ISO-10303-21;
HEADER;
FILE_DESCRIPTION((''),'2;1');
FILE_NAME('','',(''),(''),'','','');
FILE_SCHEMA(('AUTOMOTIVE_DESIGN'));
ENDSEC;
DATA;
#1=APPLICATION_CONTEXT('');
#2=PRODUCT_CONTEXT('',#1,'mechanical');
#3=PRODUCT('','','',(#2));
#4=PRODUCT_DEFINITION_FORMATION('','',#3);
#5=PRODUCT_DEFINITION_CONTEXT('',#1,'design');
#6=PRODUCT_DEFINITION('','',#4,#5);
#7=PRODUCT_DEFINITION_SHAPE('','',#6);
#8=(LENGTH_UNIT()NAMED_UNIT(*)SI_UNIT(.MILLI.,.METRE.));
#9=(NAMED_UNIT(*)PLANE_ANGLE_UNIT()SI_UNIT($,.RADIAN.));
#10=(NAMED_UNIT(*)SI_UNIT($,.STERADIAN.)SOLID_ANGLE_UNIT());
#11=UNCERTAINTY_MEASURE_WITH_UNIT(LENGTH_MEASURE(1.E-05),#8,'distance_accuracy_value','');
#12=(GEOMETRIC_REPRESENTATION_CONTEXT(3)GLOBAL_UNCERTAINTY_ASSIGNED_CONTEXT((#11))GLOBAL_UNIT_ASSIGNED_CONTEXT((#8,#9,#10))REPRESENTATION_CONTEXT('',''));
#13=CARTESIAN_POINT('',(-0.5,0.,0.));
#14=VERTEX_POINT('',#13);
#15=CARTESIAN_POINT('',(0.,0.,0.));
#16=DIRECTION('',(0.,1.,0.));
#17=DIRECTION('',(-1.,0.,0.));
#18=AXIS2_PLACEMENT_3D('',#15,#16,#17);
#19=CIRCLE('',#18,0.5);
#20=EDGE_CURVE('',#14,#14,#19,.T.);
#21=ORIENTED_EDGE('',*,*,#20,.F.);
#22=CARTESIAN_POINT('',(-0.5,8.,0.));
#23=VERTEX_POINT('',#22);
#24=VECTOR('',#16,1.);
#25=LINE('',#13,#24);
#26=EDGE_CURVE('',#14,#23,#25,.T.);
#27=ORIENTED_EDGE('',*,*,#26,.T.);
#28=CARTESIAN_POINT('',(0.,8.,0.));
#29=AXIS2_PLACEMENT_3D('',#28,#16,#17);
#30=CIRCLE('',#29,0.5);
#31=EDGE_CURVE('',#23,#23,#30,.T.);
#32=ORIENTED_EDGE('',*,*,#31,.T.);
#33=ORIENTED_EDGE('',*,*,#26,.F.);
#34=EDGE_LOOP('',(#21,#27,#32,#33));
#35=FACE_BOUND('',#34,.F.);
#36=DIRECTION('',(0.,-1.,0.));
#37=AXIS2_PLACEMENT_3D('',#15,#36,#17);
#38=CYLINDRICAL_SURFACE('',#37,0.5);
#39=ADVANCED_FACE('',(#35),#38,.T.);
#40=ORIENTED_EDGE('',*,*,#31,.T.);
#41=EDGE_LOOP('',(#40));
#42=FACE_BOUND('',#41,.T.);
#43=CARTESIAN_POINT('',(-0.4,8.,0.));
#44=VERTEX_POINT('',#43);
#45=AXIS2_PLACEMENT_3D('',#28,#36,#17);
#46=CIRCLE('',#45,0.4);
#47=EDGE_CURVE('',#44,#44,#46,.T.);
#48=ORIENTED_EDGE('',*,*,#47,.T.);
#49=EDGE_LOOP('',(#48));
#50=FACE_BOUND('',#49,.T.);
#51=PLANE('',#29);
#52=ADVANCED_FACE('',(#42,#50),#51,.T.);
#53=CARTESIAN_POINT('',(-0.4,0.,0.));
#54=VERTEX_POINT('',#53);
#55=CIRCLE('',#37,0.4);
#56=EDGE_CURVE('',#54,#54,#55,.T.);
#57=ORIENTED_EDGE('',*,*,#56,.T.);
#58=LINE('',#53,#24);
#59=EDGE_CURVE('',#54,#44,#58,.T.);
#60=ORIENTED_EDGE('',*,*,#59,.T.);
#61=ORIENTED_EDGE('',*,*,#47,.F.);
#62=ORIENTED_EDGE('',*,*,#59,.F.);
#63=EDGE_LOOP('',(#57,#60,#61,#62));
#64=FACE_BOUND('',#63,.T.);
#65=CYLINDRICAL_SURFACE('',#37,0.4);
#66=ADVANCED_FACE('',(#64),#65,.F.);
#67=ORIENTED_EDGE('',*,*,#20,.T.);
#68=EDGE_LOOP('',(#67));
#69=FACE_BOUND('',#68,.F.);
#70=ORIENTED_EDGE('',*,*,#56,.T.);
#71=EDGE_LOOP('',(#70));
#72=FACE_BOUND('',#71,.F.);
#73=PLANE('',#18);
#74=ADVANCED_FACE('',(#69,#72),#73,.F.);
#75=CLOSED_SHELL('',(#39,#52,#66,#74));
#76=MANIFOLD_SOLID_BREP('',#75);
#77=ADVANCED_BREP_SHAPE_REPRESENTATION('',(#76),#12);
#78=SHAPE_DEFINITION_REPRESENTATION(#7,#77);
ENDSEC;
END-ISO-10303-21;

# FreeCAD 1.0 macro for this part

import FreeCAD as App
import Part
import Sketcher
from FreeCAD import Vector
Q = App.Units.Quantity


def faces_at(feature, points):
    """Names of the faces that lie closest to the given points."""
    faces = feature.Shape.Faces
    near = lambda p: min(range(len(faces)), key=lambda i: faces[i].distToShape(Part.Vertex(*p))[0])
    return sorted({f"Face{near(p) + 1}" for p in points})

doc = App.newDocument("Part")
params = doc.addObject("Spreadsheet::Sheet", "Params")
for row, (alias, value) in enumerate([
    ("sketch1_diameter", "1 mm"),
    ("pad1_length", "8 mm"),
    ("thickness_wall", "0.1 mm"),
], start=1):
    params.set(f"A{row}", alias)
    params.set(f"B{row}", "=" + value)
    params.setAlias(f"B{row}", alias)

body = doc.addObject("PartDesign::Body", "Body")

# Sketch on XZ plane
sketch1 = body.newObject("Sketcher::SketchObject", "Sketch")
sketch1.AttachmentSupport = (doc.getObject("XZ_Plane"), [""])
sketch1.MapMode = "FlatFace"
sketch1.addGeometry(Part.Circle(Vector(0, 0, 0), Vector(0, 0, 1), 0.5), False)
sketch1.addConstraint([
    Sketcher.Constraint("Coincident", 0, 3, -1, 1),
    Sketcher.Constraint("Diameter", 0, Q("1 mm")),
])
sketch1.setExpression("Constraints[1]", "Params.sketch1_diameter")
pad1 = body.newObject("PartDesign::Pad", "Pad")
pad1.Profile = sketch1
pad1.setExpression("Length", "Params.pad1_length")
pad1.Reversed = True
doc.recompute()

thickness = body.newObject("PartDesign::Thickness", "Thickness")
thickness.Base = (pad1, faces_at(pad1, [(-0.309, 0, -0.156), (-0.309, 8, -0.156)]))
thickness.setExpression("Value", "Params.thickness_wall")
thickness.Reversed = True
thickness.Join = "Intersection"

doc.recompute()
